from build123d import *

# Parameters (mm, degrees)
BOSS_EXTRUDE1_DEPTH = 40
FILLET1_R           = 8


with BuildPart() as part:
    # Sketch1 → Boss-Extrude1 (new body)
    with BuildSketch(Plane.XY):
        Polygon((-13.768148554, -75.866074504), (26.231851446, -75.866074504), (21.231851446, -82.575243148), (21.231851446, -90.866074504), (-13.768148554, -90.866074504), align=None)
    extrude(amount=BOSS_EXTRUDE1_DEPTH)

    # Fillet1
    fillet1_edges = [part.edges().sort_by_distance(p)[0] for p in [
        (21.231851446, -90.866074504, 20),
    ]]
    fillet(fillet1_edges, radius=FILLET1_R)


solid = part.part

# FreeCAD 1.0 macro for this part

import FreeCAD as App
import Part
import Sketcher
from FreeCAD import Vector
Q = App.Units.Quantity


def edges_at(feature, points):
    """Names of the edges that pass closest to the given points."""
    edges = feature.Shape.Edges
    near = lambda p: min(range(len(edges)), key=lambda i: edges[i].distToShape(Part.Vertex(*p))[0])
    return sorted({f"Edge{near(p) + 1}" for p in points})


def add_polygon(sketch, points):
    """Adds a closed chain of lines whose ends are joined by coincident constraints."""
    first, n = sketch.GeometryCount, len(points)
    for a, b in zip(points, points[1:] + points[:1]):
        sketch.addGeometry(Part.LineSegment(App.Vector(*a, 0), App.Vector(*b, 0)), False)
    for i in range(n):
        sketch.addConstraint(Sketcher.Constraint("Coincident", first + i, 2, first + (i + 1) % n, 1))

doc = App.newDocument("Part")
body = doc.addObject("PartDesign::Body", "Body")

# Sketch on XY plane
sketch1 = doc.addObject("Sketcher::SketchObject", "Sketch")
body.addObject(sketch1)
sketch1.AttachmentSupport = (doc.XY_Plane, [""])
sketch1.MapMode = "FlatFace"
add_polygon(sketch1, [(26, -76), (-14, -76), (-14, -91), (21, -91), (21, -83)])  # lines 0-4
sketch1.addConstraint(Sketcher.Constraint("Horizontal", 0))
sketch1.addConstraint(Sketcher.Constraint("Vertical", 1))
sketch1.addConstraint(Sketcher.Constraint("Horizontal", 2))
sketch1.addConstraint(Sketcher.Constraint("Vertical", 3))
sketch1.addConstraint(Sketcher.Constraint("DistanceX", 0, 2, 0, 1, Q("40 mm")))
sketch1.addConstraint(Sketcher.Constraint("DistanceX", 2, 1, 2, 2, Q("35 mm")))
sketch1.addConstraint(Sketcher.Constraint("DistanceY", 1, 2, 1, 1, Q("15 mm")))
sketch1.addConstraint(Sketcher.Constraint("DistanceY", 3, 1, 3, 2, Q("8.290831 mm")))
sketch1.addConstraint(Sketcher.Constraint("DistanceX", 0, 2, -1, 1, Q("13.768149 mm")))
sketch1.addConstraint(Sketcher.Constraint("DistanceY", 0, 2, -1, 1, Q("75.866075 mm")))
pad1 = doc.addObject("PartDesign::Pad", "Pad")
body.addObject(pad1)
pad1.Profile = sketch1
pad1.Length = 40
doc.recompute()

fillet = doc.addObject("PartDesign::Fillet", "Fillet")
body.addObject(fillet)
fillet.Base = (pad1, edges_at(pad1, [(21.232, -90.866, 20)]))
fillet.Radius = 8

doc.recompute()
